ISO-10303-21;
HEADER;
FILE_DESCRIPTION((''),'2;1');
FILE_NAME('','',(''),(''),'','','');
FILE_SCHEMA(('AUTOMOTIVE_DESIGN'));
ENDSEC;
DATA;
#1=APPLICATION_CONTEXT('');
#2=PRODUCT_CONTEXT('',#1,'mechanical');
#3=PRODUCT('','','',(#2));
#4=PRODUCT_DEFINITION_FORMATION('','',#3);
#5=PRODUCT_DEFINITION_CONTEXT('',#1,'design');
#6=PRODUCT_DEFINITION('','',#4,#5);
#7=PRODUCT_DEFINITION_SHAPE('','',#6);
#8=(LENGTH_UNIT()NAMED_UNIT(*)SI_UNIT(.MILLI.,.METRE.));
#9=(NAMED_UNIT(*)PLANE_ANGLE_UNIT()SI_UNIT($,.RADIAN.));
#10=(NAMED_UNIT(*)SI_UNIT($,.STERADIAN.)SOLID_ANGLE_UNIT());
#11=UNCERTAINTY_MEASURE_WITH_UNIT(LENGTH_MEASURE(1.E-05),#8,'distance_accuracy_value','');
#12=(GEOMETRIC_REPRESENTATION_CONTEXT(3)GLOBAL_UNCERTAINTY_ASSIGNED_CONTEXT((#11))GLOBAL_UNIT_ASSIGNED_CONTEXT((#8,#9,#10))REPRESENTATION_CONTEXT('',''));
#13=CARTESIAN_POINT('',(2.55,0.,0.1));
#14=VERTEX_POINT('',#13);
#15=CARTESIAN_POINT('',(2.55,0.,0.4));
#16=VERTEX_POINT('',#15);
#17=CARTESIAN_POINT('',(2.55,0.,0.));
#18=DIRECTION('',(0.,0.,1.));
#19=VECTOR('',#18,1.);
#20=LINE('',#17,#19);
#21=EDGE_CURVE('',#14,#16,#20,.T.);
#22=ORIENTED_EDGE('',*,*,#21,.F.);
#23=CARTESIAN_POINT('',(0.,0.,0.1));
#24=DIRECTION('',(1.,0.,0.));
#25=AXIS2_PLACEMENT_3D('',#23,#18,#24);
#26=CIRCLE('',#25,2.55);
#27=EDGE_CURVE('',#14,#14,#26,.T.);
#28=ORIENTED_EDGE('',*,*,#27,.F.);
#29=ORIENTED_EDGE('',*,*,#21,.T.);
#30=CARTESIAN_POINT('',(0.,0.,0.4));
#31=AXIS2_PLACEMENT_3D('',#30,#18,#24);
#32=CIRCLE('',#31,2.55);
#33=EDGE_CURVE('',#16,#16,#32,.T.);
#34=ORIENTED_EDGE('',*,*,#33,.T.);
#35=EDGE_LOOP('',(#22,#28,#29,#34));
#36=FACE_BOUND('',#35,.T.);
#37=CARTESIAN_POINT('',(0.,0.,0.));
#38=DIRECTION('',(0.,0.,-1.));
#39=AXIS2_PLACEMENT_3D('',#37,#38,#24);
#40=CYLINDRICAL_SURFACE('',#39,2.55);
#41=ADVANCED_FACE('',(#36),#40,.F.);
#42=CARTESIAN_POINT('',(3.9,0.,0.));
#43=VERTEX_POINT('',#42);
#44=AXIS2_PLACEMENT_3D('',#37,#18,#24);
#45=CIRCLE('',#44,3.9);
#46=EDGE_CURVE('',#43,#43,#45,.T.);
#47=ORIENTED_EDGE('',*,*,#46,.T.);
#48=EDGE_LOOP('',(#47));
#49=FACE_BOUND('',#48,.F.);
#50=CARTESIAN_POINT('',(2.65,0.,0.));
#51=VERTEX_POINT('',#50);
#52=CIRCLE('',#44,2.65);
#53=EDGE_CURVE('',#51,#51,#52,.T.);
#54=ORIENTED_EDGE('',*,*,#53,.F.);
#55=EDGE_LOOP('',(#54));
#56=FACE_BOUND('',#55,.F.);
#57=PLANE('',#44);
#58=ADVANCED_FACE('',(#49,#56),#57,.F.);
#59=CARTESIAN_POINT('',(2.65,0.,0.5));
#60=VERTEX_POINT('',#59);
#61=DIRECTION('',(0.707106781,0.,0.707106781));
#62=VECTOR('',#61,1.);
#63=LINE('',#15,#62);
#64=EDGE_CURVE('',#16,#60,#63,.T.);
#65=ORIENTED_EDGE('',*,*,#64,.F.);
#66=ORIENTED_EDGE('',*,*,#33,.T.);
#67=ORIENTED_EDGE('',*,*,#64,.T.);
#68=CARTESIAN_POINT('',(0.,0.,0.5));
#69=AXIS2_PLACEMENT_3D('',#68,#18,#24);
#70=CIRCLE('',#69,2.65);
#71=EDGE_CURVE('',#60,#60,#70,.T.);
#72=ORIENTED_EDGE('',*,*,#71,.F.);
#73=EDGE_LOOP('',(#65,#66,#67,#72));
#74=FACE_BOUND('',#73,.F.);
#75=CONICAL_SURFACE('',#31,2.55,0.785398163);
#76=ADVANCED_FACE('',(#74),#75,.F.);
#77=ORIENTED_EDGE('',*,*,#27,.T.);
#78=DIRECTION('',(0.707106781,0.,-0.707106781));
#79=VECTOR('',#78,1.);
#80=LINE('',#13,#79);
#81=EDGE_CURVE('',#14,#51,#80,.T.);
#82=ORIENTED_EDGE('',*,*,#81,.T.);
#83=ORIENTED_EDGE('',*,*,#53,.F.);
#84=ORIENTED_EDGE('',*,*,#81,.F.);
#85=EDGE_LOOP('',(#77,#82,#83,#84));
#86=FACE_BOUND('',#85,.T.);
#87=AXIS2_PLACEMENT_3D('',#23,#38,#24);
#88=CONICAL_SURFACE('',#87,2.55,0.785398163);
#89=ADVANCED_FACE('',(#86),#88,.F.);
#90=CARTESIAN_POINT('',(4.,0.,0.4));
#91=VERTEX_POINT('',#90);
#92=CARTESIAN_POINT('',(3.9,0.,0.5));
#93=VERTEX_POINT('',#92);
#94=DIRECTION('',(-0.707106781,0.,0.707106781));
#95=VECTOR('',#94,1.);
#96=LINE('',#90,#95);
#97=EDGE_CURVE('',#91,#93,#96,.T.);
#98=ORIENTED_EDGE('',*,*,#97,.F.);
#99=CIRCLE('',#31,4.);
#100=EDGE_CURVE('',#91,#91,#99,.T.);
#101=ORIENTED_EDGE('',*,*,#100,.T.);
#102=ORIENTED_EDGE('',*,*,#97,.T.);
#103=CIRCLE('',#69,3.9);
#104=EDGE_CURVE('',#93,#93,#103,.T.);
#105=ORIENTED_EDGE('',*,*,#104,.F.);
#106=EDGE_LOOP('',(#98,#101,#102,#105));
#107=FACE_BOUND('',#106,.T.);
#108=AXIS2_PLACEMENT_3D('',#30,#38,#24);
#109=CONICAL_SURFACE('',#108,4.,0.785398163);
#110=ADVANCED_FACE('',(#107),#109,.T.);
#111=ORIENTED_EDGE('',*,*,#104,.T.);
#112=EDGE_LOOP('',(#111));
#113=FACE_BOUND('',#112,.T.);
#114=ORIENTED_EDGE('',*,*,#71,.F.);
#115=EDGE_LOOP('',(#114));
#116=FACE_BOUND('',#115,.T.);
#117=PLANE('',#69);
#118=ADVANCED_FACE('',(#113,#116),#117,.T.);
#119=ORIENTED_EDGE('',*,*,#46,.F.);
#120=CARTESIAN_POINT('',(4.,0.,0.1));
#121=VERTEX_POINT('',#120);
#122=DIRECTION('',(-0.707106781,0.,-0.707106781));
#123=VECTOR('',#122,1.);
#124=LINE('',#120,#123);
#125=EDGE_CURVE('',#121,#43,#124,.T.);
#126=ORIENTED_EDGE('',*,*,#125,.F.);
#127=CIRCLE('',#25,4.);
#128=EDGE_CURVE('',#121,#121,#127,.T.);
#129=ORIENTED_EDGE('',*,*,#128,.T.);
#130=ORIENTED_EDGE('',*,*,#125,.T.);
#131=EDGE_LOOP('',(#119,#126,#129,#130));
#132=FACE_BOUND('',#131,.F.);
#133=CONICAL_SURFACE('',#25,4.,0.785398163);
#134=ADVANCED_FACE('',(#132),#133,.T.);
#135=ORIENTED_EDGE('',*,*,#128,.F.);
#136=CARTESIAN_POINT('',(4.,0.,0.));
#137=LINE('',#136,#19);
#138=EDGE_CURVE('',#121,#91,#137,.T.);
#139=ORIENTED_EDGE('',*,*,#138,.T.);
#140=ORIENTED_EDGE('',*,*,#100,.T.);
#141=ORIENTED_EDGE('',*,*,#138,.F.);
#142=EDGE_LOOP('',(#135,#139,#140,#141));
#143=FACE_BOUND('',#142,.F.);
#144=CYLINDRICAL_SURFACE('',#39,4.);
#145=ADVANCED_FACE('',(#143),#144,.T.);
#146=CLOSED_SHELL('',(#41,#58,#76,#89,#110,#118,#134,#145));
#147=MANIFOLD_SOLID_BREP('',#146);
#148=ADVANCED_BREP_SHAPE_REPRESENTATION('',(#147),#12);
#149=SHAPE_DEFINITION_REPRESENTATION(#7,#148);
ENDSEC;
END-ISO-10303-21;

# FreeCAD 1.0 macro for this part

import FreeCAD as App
import Part
import Sketcher


def edges_at(feature, points):
    """Names of the edges that pass closest to the given points."""
    edges = feature.Shape.Edges
    near = lambda p: min(range(len(edges)), key=lambda i: edges[i].distToShape(Part.Vertex(*p))[0])
    return sorted({f"Edge{near(p) + 1}" for p in points})

doc = App.newDocument("Part")
params = doc.addObject("Spreadsheet::Sheet", "Params")
for row, (alias, value) in enumerate([
    ("sketch1_diameter", "8 mm"),
    ("sketch1_diameter2", "5.1 mm"),
    ("pad1_length", "0.5 mm"),
    ("chamfer_size", "0.1 mm"),
], start=1):
    params.set(f"A{row}", alias)
    params.set(f"B{row}", "=" + value)
    params.setAlias(f"B{row}", alias)

body = doc.addObject("PartDesign::Body", "Body")

# Sketch on XY plane
sketch1 = body.newObject("Sketcher::SketchObject", "Sketch")
sketch1.AttachmentSupport = (doc.getObject("XY_Plane"), [""])
sketch1.MapMode = "FlatFace"
sketch1.addGeometry([
    Part.Circle(App.Vector(0, 0, 0), App.Vector(0, 0, 1), 4),
    Part.Circle(App.Vector(0, 0, 0), App.Vector(0, 0, 1), 2.55),
], False)
sketch1.addConstraint([
    Sketcher.Constraint("Coincident", 0, 3, -1, 1),
    Sketcher.Constraint("Coincident", 1, 3, -1, 1),
    Sketcher.Constraint("Diameter", 0, 8.0),
    Sketcher.Constraint("Diameter", 1, 5.1),
])
sketch1.setExpression("Constraints[2]", "Params.sketch1_diameter")
sketch1.setExpression("Constraints[3]", "Params.sketch1_diameter2")
pad1 = body.newObject("PartDesign::Pad", "Pad")
pad1.Profile = sketch1
pad1.setExpression("Length", "Params.pad1_length")
doc.recompute()

chamfer = body.newObject("PartDesign::Chamfer", "Chamfer")
chamfer.Base = (pad1, edges_at(pad1, [
    (-4, 0, 0),
    (-4, 0, 0.5),
    (-2.55, 0, 0),
    (-2.55, 0, 0.5),
]))
chamfer.setExpression("Size", "Params.chamfer_size")

doc.recompute()
